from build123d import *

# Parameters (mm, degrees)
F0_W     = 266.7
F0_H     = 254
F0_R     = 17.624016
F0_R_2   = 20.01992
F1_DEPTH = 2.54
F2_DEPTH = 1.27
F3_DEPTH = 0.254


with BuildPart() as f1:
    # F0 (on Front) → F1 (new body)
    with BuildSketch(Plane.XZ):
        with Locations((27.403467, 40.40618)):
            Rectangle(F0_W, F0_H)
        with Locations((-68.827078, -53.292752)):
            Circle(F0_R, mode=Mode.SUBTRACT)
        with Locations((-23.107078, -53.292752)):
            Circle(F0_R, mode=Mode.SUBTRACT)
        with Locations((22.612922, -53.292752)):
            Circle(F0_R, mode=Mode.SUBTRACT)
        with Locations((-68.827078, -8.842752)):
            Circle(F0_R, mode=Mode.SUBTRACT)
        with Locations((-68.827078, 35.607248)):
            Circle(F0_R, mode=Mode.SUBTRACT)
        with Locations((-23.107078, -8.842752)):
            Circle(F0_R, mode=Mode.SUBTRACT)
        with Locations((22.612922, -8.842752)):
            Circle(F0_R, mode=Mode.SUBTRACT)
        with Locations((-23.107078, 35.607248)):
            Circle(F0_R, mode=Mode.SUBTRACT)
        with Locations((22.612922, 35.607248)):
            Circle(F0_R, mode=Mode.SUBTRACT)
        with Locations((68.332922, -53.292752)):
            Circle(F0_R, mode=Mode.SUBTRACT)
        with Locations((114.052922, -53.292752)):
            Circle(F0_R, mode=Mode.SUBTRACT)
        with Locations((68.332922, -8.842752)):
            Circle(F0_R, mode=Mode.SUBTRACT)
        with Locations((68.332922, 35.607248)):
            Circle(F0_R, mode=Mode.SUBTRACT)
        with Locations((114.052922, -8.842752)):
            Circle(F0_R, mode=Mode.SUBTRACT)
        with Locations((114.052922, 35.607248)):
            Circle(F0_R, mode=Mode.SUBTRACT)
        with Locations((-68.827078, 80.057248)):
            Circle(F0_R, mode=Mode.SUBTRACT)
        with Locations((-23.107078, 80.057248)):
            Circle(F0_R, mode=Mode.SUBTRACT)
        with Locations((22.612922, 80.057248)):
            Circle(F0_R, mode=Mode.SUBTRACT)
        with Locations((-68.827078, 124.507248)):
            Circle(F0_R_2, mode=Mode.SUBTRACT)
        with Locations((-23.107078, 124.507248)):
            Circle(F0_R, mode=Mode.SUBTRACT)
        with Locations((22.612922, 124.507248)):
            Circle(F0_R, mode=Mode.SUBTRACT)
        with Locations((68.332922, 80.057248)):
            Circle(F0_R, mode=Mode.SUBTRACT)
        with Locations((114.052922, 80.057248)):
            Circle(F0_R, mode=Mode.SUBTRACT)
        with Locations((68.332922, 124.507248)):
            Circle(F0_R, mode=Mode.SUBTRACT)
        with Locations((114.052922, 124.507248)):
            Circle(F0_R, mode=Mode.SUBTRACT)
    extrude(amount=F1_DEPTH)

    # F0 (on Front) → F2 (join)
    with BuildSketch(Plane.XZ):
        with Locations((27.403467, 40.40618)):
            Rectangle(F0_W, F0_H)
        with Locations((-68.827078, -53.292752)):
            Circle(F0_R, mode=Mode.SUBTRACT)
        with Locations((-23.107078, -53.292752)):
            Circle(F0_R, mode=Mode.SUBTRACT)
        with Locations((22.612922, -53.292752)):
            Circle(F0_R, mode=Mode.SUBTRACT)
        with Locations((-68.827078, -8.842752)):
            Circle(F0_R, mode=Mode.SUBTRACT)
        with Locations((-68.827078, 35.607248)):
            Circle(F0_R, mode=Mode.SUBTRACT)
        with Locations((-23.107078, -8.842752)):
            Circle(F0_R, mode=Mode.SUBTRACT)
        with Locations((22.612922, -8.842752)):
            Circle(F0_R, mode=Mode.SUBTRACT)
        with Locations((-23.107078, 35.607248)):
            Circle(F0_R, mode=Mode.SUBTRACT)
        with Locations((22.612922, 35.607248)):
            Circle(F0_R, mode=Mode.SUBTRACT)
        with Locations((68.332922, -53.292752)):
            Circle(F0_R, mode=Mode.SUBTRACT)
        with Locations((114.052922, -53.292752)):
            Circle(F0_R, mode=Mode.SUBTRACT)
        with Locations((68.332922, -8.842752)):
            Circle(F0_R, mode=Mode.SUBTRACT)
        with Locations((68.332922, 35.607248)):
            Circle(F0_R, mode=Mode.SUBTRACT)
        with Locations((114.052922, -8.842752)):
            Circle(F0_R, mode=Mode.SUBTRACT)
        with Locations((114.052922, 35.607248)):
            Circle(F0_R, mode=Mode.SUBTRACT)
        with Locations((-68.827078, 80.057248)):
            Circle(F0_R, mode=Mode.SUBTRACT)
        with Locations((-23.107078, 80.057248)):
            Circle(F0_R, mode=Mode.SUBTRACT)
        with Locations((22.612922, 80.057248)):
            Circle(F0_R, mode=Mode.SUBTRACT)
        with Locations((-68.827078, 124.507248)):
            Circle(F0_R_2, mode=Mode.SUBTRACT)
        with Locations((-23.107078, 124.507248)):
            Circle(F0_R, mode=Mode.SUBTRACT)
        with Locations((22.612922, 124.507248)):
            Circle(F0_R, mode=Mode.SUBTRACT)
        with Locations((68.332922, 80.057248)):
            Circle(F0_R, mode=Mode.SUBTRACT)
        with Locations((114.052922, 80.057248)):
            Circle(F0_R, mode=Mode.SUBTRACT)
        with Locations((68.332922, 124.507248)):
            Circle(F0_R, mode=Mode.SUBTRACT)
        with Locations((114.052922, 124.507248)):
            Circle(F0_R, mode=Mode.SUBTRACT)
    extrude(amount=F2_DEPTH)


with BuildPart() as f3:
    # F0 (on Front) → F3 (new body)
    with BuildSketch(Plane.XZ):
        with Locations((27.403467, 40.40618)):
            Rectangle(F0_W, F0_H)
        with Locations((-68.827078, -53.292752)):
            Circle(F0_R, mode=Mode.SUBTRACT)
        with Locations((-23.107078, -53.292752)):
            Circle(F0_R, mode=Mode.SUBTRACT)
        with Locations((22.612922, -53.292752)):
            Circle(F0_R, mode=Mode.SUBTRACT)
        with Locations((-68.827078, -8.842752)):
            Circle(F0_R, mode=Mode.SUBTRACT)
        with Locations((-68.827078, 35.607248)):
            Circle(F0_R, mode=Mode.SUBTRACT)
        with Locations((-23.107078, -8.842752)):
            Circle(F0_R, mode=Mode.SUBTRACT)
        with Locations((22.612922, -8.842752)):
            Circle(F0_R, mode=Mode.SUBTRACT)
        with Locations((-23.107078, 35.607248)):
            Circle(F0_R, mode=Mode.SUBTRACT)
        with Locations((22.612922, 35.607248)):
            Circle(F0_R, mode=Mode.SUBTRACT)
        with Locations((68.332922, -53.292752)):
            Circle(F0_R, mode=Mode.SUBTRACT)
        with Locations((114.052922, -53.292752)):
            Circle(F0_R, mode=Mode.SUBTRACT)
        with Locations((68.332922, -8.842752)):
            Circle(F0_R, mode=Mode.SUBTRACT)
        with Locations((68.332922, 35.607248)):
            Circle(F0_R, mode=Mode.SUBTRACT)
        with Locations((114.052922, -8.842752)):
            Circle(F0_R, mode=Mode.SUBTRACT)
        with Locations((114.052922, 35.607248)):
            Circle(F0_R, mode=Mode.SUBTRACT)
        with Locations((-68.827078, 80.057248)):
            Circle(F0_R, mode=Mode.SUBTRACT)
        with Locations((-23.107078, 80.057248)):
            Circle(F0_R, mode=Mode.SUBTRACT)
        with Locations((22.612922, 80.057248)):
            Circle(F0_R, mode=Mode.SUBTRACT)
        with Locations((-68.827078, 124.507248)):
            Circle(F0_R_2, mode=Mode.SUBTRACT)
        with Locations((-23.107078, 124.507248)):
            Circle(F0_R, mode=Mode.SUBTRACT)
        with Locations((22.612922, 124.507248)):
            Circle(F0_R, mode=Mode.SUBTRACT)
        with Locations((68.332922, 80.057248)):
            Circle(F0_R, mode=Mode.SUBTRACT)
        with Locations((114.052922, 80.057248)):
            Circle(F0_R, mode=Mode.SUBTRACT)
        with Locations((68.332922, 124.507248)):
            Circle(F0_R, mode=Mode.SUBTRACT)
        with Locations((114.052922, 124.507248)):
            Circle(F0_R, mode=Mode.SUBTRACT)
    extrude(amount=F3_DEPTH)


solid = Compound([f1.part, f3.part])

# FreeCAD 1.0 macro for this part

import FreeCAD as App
import Part
import Sketcher

V = App.Vector
Q = App.Units.Quantity


def add_polygon(sketch, points):
    """Adds a closed chain of lines whose ends are joined by coincident constraints."""
    first, n = sketch.GeometryCount, len(points)
    for a, b in zip(points, points[1:] + points[:1]):
        sketch.addGeometry(Part.LineSegment(App.Vector(*a, 0), App.Vector(*b, 0)), False)
    for i in range(n):
        sketch.addConstraint(Sketcher.Constraint("Coincident", first + i, 2, first + (i + 1) % n, 1))

doc = App.newDocument("Part")
params = doc.addObject("Spreadsheet::Sheet", "Params")
for row, (alias, value) in enumerate([
    ("sketch1_height", "10 in"),
    ("sketch1_width", "10.5 in"),
    ("pad1_length", "0.1 in"),
    ("sketch2_height", "10 in"),
    ("sketch2_width", "10.5 in"),
    ("pad2_length", "0.05 in"),
    ("sketch3_height", "10 in"),
    ("sketch3_width", "10.5 in"),
    ("pad3_length", "0.01 in"),
], start=1):
    params.set(f"A{row}", alias)
    params.set(f"B{row}", "=" + value)
    params.setAlias(f"B{row}", alias)

body = doc.addObject("PartDesign::Body", "Body")

sketch1 = doc.addObject("Sketcher::SketchObject", "Sketch")
body.addObject(sketch1)
sketch1.AttachmentSupport = (doc.XZ_Plane, [""])
sketch1.MapMode = "FlatFace"
add_polygon(sketch1, [(-106, 167), (-106, -87), (161, -87), (161, 167)])
sketch1.addGeometry(Part.Circle(V(-69, -53, 0), V(0, 0, 1), 18), False)
sketch1.addGeometry(Part.Circle(V(-23, -53, 0), V(0, 0, 1), 18), False)
sketch1.addGeometry(Part.Circle(V(-69, -9, 0), V(0, 0, 1), 18), False)
sketch1.addGeometry(Part.Circle(V(-69, 36, 0), V(0, 0, 1), 18), False)
sketch1.addGeometry(Part.Circle(V(-23, -9, 0), V(0, 0, 1), 18), False)
sketch1.addGeometry(Part.Circle(V(-23, 36, 0), V(0, 0, 1), 18), False)
sketch1.addGeometry(Part.Circle(V(23, -53, 0), V(0, 0, 1), 18), False)
sketch1.addGeometry(Part.Circle(V(68, -53, 0), V(0, 0, 1), 18), False)
sketch1.addGeometry(Part.Circle(V(114, -53, 0), V(0, 0, 1), 18), False)
sketch1.addGeometry(Part.Circle(V(23, -9, 0), V(0, 0, 1), 18), False)
sketch1.addGeometry(Part.Circle(V(68, -9, 0), V(0, 0, 1), 18), False)
sketch1.addGeometry(Part.Circle(V(23, 36, 0), V(0, 0, 1), 18), False)
sketch1.addGeometry(Part.Circle(V(68, 36, 0), V(0, 0, 1), 18), False)
sketch1.addGeometry(Part.Circle(V(114, -9, 0), V(0, 0, 1), 18), False)
sketch1.addGeometry(Part.Circle(V(114, 36, 0), V(0, 0, 1), 18), False)
sketch1.addGeometry(Part.Circle(V(-69, 80, 0), V(0, 0, 1), 18), False)
sketch1.addGeometry(Part.Circle(V(-23, 80, 0), V(0, 0, 1), 18), False)
sketch1.addGeometry(Part.Circle(V(-69, 125, 0), V(0, 0, 1), 20), False)
sketch1.addGeometry(Part.Circle(V(-23, 125, 0), V(0, 0, 1), 18), False)
sketch1.addGeometry(Part.Circle(V(23, 80, 0), V(0, 0, 1), 18), False)
sketch1.addGeometry(Part.Circle(V(68, 80, 0), V(0, 0, 1), 18), False)
sketch1.addGeometry(Part.Circle(V(114, 80, 0), V(0, 0, 1), 18), False)
sketch1.addGeometry(Part.Circle(V(23, 125, 0), V(0, 0, 1), 18), False)
sketch1.addGeometry(Part.Circle(V(68, 125, 0), V(0, 0, 1), 18), False)
sketch1.addGeometry(Part.Circle(V(114, 125, 0), V(0, 0, 1), 18), False)
sketch1.addConstraint(Sketcher.Constraint("Vertical", 0))
sketch1.addConstraint(Sketcher.Constraint("Horizontal", 1))
sketch1.addConstraint(Sketcher.Constraint("Vertical", 2))
sketch1.addConstraint(Sketcher.Constraint("Horizontal", 3))
sketch1.addConstraint(Sketcher.Constraint("Equal", 4, 5))
sketch1.addConstraint(Sketcher.Constraint("Equal", 5, 6))
sketch1.addConstraint(Sketcher.Constraint("Equal", 6, 7))
sketch1.addConstraint(Sketcher.Constraint("Equal", 7, 8))
sketch1.addConstraint(Sketcher.Constraint("Equal", 8, 9))
sketch1.addConstraint(Sketcher.Constraint("Equal", 9, 10))
sketch1.addConstraint(Sketcher.Constraint("Equal", 10, 11))
sketch1.addConstraint(Sketcher.Constraint("Equal", 11, 12))
sketch1.addConstraint(Sketcher.Constraint("Equal", 12, 13))
sketch1.addConstraint(Sketcher.Constraint("Equal", 13, 14))
sketch1.addConstraint(Sketcher.Constraint("Equal", 14, 15))
sketch1.addConstraint(Sketcher.Constraint("Equal", 15, 16))
sketch1.addConstraint(Sketcher.Constraint("Equal", 16, 17))
sketch1.addConstraint(Sketcher.Constraint("Equal", 17, 18))
sketch1.addConstraint(Sketcher.Constraint("Equal", 18, 19))
sketch1.addConstraint(Sketcher.Constraint("Equal", 19, 20))
sketch1.addConstraint(Sketcher.Constraint("Equal", 20, 22))
sketch1.addConstraint(Sketcher.Constraint("Equal", 22, 23))
sketch1.addConstraint(Sketcher.Constraint("Equal", 23, 24))
sketch1.addConstraint(Sketcher.Constraint("Equal", 24, 25))
sketch1.addConstraint(Sketcher.Constraint("Equal", 25, 26))
sketch1.addConstraint(Sketcher.Constraint("Equal", 26, 27))
sketch1.addConstraint(Sketcher.Constraint("Equal", 27, 28))
sketch1.addConstraint(Sketcher.Constraint("Horizontal", 4, 3, 5, 3))
sketch1.addConstraint(Sketcher.Constraint("Horizontal", 6, 3, 8, 3))
sketch1.addConstraint(Sketcher.Constraint("Horizontal", 7, 3, 9, 3))
sketch1.addConstraint(Sketcher.Constraint("Horizontal", 5, 3, 10, 3))
sketch1.addConstraint(Sketcher.Constraint("Horizontal", 10, 3, 11, 3))
sketch1.addConstraint(Sketcher.Constraint("Horizontal", 11, 3, 12, 3))
sketch1.addConstraint(Sketcher.Constraint("Horizontal", 8, 3, 13, 3))
sketch1.addConstraint(Sketcher.Constraint("Horizontal", 13, 3, 14, 3))
sketch1.addConstraint(Sketcher.Constraint("Horizontal", 9, 3, 15, 3))
sketch1.addConstraint(Sketcher.Constraint("Horizontal", 15, 3, 16, 3))
sketch1.addConstraint(Sketcher.Constraint("Horizontal", 14, 3, 17, 3))
sketch1.addConstraint(Sketcher.Constraint("Horizontal", 16, 3, 18, 3))
sketch1.addConstraint(Sketcher.Constraint("Horizontal", 19, 3, 20, 3))
sketch1.addConstraint(Sketcher.Constraint("Horizontal", 21, 3, 22, 3))
sketch1.addConstraint(Sketcher.Constraint("Horizontal", 20, 3, 23, 3))
sketch1.addConstraint(Sketcher.Constraint("Horizontal", 23, 3, 24, 3))
sketch1.addConstraint(Sketcher.Constraint("Horizontal", 24, 3, 25, 3))
sketch1.addConstraint(Sketcher.Constraint("Horizontal", 22, 3, 26, 3))
sketch1.addConstraint(Sketcher.Constraint("Horizontal", 26, 3, 27, 3))
sketch1.addConstraint(Sketcher.Constraint("Horizontal", 27, 3, 28, 3))
sketch1.addConstraint(Sketcher.Constraint("Vertical", 4, 3, 6, 3))
sketch1.addConstraint(Sketcher.Constraint("Vertical", 6, 3, 7, 3))
sketch1.addConstraint(Sketcher.Constraint("Vertical", 5, 3, 8, 3))
sketch1.addConstraint(Sketcher.Constraint("Vertical", 8, 3, 9, 3))
sketch1.addConstraint(Sketcher.Constraint("Vertical", 10, 3, 13, 3))
sketch1.addConstraint(Sketcher.Constraint("Vertical", 11, 3, 14, 3))
sketch1.addConstraint(Sketcher.Constraint("Vertical", 13, 3, 15, 3))
sketch1.addConstraint(Sketcher.Constraint("Vertical", 14, 3, 16, 3))
sketch1.addConstraint(Sketcher.Constraint("Vertical", 12, 3, 17, 3))
sketch1.addConstraint(Sketcher.Constraint("Vertical", 17, 3, 18, 3))
sketch1.addConstraint(Sketcher.Constraint("Vertical", 7, 3, 19, 3))
sketch1.addConstraint(Sketcher.Constraint("Vertical", 9, 3, 20, 3))
sketch1.addConstraint(Sketcher.Constraint("Vertical", 19, 3, 21, 3))
sketch1.addConstraint(Sketcher.Constraint("Vertical", 20, 3, 22, 3))
sketch1.addConstraint(Sketcher.Constraint("Vertical", 15, 3, 23, 3))
sketch1.addConstraint(Sketcher.Constraint("Vertical", 16, 3, 24, 3))
sketch1.addConstraint(Sketcher.Constraint("Vertical", 18, 3, 25, 3))
sketch1.addConstraint(Sketcher.Constraint("Vertical", 23, 3, 26, 3))
sketch1.addConstraint(Sketcher.Constraint("Vertical", 24, 3, 27, 3))
sketch1.addConstraint(Sketcher.Constraint("Vertical", 25, 3, 28, 3))
sketch1.addConstraint(Sketcher.Constraint("DistanceY", 0, 2, 0, 1, Q("10 in")))
sketch1.addConstraint(Sketcher.Constraint("DistanceX", 1, 1, 1, 2, Q("10.5 in")))
sketch1.addConstraint(Sketcher.Constraint("DistanceX", 4, 3, 5, 3, Q("1.8 in")))
sketch1.addConstraint(Sketcher.Constraint("DistanceY", 4, 3, 7, 3, Q("3.5 in")))
sketch1.addConstraint(Sketcher.Constraint("DistanceX", 5, 3, 10, 3, Q("1.8 in")))
sketch1.addConstraint(Sketcher.Constraint("DistanceX", 10, 3, 11, 3, Q("1.8 in")))
sketch1.addConstraint(Sketcher.Constraint("DistanceX", 11, 3, 12, 3, Q("1.8 in")))
sketch1.addConstraint(Sketcher.Constraint("DistanceY", 6, 3, 19, 3, Q("3.5 in")))
sketch1.addConstraint(Sketcher.Constraint("DistanceY", 7, 3, 21, 3, Q("3.5 in")))
sketch1.addConstraint(Sketcher.Constraint("DistanceY", 4, 3, 6, 3, Q("1.75 in")))
sketch1.addConstraint(Sketcher.Constraint("Diameter", 21, 40.03984))
sketch1.addConstraint(Sketcher.Constraint("Diameter", 4, 35.248032))
sketch1.addConstraint(Sketcher.Constraint("DistanceX", 4, 3, -1, 1, 68.827078))
sketch1.addConstraint(Sketcher.Constraint("DistanceY", -1, 1, 19, 3, 80.057248))
sketch1.addConstraint(Sketcher.Constraint("DistanceY", 0, 2, -1, 1, 86.59382))
sketch1.addConstraint(Sketcher.Constraint("DistanceX", 0, 2, -1, 1, 105.946533))
sketch1.setExpression("Constraints[71]", "Params.sketch1_height")
sketch1.setExpression("Constraints[72]", "Params.sketch1_width")
pad1 = doc.addObject("PartDesign::Pad", "Pad")
body.addObject(pad1)
pad1.Profile = sketch1
pad1.setExpression("Length", "Params.pad1_length")

sketch2 = doc.addObject("Sketcher::SketchObject", "Sketch001")
body.addObject(sketch2)
sketch2.AttachmentSupport = (doc.XZ_Plane, [""])
sketch2.MapMode = "FlatFace"
add_polygon(sketch2, [(-106, 167), (-106, -87), (161, -87), (161, 167)])
sketch2.addGeometry(Part.Circle(V(-69, -53, 0), V(0, 0, 1), 18), False)
sketch2.addGeometry(Part.Circle(V(-23, -53, 0), V(0, 0, 1), 18), False)
sketch2.addGeometry(Part.Circle(V(-69, -9, 0), V(0, 0, 1), 18), False)
sketch2.addGeometry(Part.Circle(V(-69, 36, 0), V(0, 0, 1), 18), False)
sketch2.addGeometry(Part.Circle(V(-23, -9, 0), V(0, 0, 1), 18), False)
sketch2.addGeometry(Part.Circle(V(-23, 36, 0), V(0, 0, 1), 18), False)
sketch2.addGeometry(Part.Circle(V(23, -53, 0), V(0, 0, 1), 18), False)
sketch2.addGeometry(Part.Circle(V(68, -53, 0), V(0, 0, 1), 18), False)
sketch2.addGeometry(Part.Circle(V(114, -53, 0), V(0, 0, 1), 18), False)
sketch2.addGeometry(Part.Circle(V(23, -9, 0), V(0, 0, 1), 18), False)
sketch2.addGeometry(Part.Circle(V(68, -9, 0), V(0, 0, 1), 18), False)
sketch2.addGeometry(Part.Circle(V(23, 36, 0), V(0, 0, 1), 18), False)
sketch2.addGeometry(Part.Circle(V(68, 36, 0), V(0, 0, 1), 18), False)
sketch2.addGeometry(Part.Circle(V(114, -9, 0), V(0, 0, 1), 18), False)
sketch2.addGeometry(Part.Circle(V(114, 36, 0), V(0, 0, 1), 18), False)
sketch2.addGeometry(Part.Circle(V(-69, 80, 0), V(0, 0, 1), 18), False)
sketch2.addGeometry(Part.Circle(V(-23, 80, 0), V(0, 0, 1), 18), False)
sketch2.addGeometry(Part.Circle(V(-69, 125, 0), V(0, 0, 1), 20), False)
sketch2.addGeometry(Part.Circle(V(-23, 125, 0), V(0, 0, 1), 18), False)
sketch2.addGeometry(Part.Circle(V(23, 80, 0), V(0, 0, 1), 18), False)
sketch2.addGeometry(Part.Circle(V(68, 80, 0), V(0, 0, 1), 18), False)
sketch2.addGeometry(Part.Circle(V(114, 80, 0), V(0, 0, 1), 18), False)
sketch2.addGeometry(Part.Circle(V(23, 125, 0), V(0, 0, 1), 18), False)
sketch2.addGeometry(Part.Circle(V(68, 125, 0), V(0, 0, 1), 18), False)
sketch2.addGeometry(Part.Circle(V(114, 125, 0), V(0, 0, 1), 18), False)
sketch2.addConstraint(Sketcher.Constraint("Vertical", 0))
sketch2.addConstraint(Sketcher.Constraint("Horizontal", 1))
sketch2.addConstraint(Sketcher.Constraint("Vertical", 2))
sketch2.addConstraint(Sketcher.Constraint("Horizontal", 3))
sketch2.addConstraint(Sketcher.Constraint("Equal", 4, 5))
sketch2.addConstraint(Sketcher.Constraint("Equal", 5, 6))
sketch2.addConstraint(Sketcher.Constraint("Equal", 6, 7))
sketch2.addConstraint(Sketcher.Constraint("Equal", 7, 8))
sketch2.addConstraint(Sketcher.Constraint("Equal", 8, 9))
sketch2.addConstraint(Sketcher.Constraint("Equal", 9, 10))
sketch2.addConstraint(Sketcher.Constraint("Equal", 10, 11))
sketch2.addConstraint(Sketcher.Constraint("Equal", 11, 12))
sketch2.addConstraint(Sketcher.Constraint("Equal", 12, 13))
sketch2.addConstraint(Sketcher.Constraint("Equal", 13, 14))
sketch2.addConstraint(Sketcher.Constraint("Equal", 14, 15))
sketch2.addConstraint(Sketcher.Constraint("Equal", 15, 16))
sketch2.addConstraint(Sketcher.Constraint("Equal", 16, 17))
sketch2.addConstraint(Sketcher.Constraint("Equal", 17, 18))
sketch2.addConstraint(Sketcher.Constraint("Equal", 18, 19))
sketch2.addConstraint(Sketcher.Constraint("Equal", 19, 20))
sketch2.addConstraint(Sketcher.Constraint("Equal", 20, 22))
sketch2.addConstraint(Sketcher.Constraint("Equal", 22, 23))
sketch2.addConstraint(Sketcher.Constraint("Equal", 23, 24))
sketch2.addConstraint(Sketcher.Constraint("Equal", 24, 25))
sketch2.addConstraint(Sketcher.Constraint("Equal", 25, 26))
sketch2.addConstraint(Sketcher.Constraint("Equal", 26, 27))
sketch2.addConstraint(Sketcher.Constraint("Equal", 27, 28))
sketch2.addConstraint(Sketcher.Constraint("Horizontal", 4, 3, 5, 3))
sketch2.addConstraint(Sketcher.Constraint("Horizontal", 6, 3, 8, 3))
sketch2.addConstraint(Sketcher.Constraint("Horizontal", 7, 3, 9, 3))
sketch2.addConstraint(Sketcher.Constraint("Horizontal", 5, 3, 10, 3))
sketch2.addConstraint(Sketcher.Constraint("Horizontal", 10, 3, 11, 3))
sketch2.addConstraint(Sketcher.Constraint("Horizontal", 11, 3, 12, 3))
sketch2.addConstraint(Sketcher.Constraint("Horizontal", 8, 3, 13, 3))
sketch2.addConstraint(Sketcher.Constraint("Horizontal", 13, 3, 14, 3))
sketch2.addConstraint(Sketcher.Constraint("Horizontal", 9, 3, 15, 3))
sketch2.addConstraint(Sketcher.Constraint("Horizontal", 15, 3, 16, 3))
sketch2.addConstraint(Sketcher.Constraint("Horizontal", 14, 3, 17, 3))
sketch2.addConstraint(Sketcher.Constraint("Horizontal", 16, 3, 18, 3))
sketch2.addConstraint(Sketcher.Constraint("Horizontal", 19, 3, 20, 3))
sketch2.addConstraint(Sketcher.Constraint("Horizontal", 21, 3, 22, 3))
sketch2.addConstraint(Sketcher.Constraint("Horizontal", 20, 3, 23, 3))
sketch2.addConstraint(Sketcher.Constraint("Horizontal", 23, 3, 24, 3))
sketch2.addConstraint(Sketcher.Constraint("Horizontal", 24, 3, 25, 3))
sketch2.addConstraint(Sketcher.Constraint("Horizontal", 22, 3, 26, 3))
sketch2.addConstraint(Sketcher.Constraint("Horizontal", 26, 3, 27, 3))
sketch2.addConstraint(Sketcher.Constraint("Horizontal", 27, 3, 28, 3))
sketch2.addConstraint(Sketcher.Constraint("Vertical", 4, 3, 6, 3))
sketch2.addConstraint(Sketcher.Constraint("Vertical", 6, 3, 7, 3))
sketch2.addConstraint(Sketcher.Constraint("Vertical", 5, 3, 8, 3))
sketch2.addConstraint(Sketcher.Constraint("Vertical", 8, 3, 9, 3))
sketch2.addConstraint(Sketcher.Constraint("Vertical", 10, 3, 13, 3))
sketch2.addConstraint(Sketcher.Constraint("Vertical", 11, 3, 14, 3))
sketch2.addConstraint(Sketcher.Constraint("Vertical", 13, 3, 15, 3))
sketch2.addConstraint(Sketcher.Constraint("Vertical", 14, 3, 16, 3))
sketch2.addConstraint(Sketcher.Constraint("Vertical", 12, 3, 17, 3))
sketch2.addConstraint(Sketcher.Constraint("Vertical", 17, 3, 18, 3))
sketch2.addConstraint(Sketcher.Constraint("Vertical", 7, 3, 19, 3))
sketch2.addConstraint(Sketcher.Constraint("Vertical", 9, 3, 20, 3))
sketch2.addConstraint(Sketcher.Constraint("Vertical", 19, 3, 21, 3))
sketch2.addConstraint(Sketcher.Constraint("Vertical", 20, 3, 22, 3))
sketch2.addConstraint(Sketcher.Constraint("Vertical", 15, 3, 23, 3))
sketch2.addConstraint(Sketcher.Constraint("Vertical", 16, 3, 24, 3))
sketch2.addConstraint(Sketcher.Constraint("Vertical", 18, 3, 25, 3))
sketch2.addConstraint(Sketcher.Constraint("Vertical", 23, 3, 26, 3))
sketch2.addConstraint(Sketcher.Constraint("Vertical", 24, 3, 27, 3))
sketch2.addConstraint(Sketcher.Constraint("Vertical", 25, 3, 28, 3))
sketch2.addConstraint(Sketcher.Constraint("DistanceY", 0, 2, 0, 1, Q("10 in")))
sketch2.addConstraint(Sketcher.Constraint("DistanceX", 1, 1, 1, 2, Q("10.5 in")))
sketch2.addConstraint(Sketcher.Constraint("DistanceX", 4, 3, 5, 3, Q("1.8 in")))
sketch2.addConstraint(Sketcher.Constraint("DistanceY", 4, 3, 7, 3, Q("3.5 in")))
sketch2.addConstraint(Sketcher.Constraint("DistanceX", 5, 3, 10, 3, Q("1.8 in")))
sketch2.addConstraint(Sketcher.Constraint("DistanceX", 10, 3, 11, 3, Q("1.8 in")))
sketch2.addConstraint(Sketcher.Constraint("DistanceX", 11, 3, 12, 3, Q("1.8 in")))
sketch2.addConstraint(Sketcher.Constraint("DistanceY", 6, 3, 19, 3, Q("3.5 in")))
sketch2.addConstraint(Sketcher.Constraint("DistanceY", 7, 3, 21, 3, Q("3.5 in")))
sketch2.addConstraint(Sketcher.Constraint("DistanceY", 4, 3, 6, 3, Q("1.75 in")))
sketch2.addConstraint(Sketcher.Constraint("Diameter", 21, 40.03984))
sketch2.addConstraint(Sketcher.Constraint("Diameter", 4, 35.248032))
sketch2.addConstraint(Sketcher.Constraint("DistanceX", 4, 3, -1, 1, 68.827078))
sketch2.addConstraint(Sketcher.Constraint("DistanceY", -1, 1, 19, 3, 80.057248))
sketch2.addConstraint(Sketcher.Constraint("DistanceY", 0, 2, -1, 1, 86.59382))
sketch2.addConstraint(Sketcher.Constraint("DistanceX", 0, 2, -1, 1, 105.946533))
sketch2.setExpression("Constraints[71]", "Params.sketch2_height")
sketch2.setExpression("Constraints[72]", "Params.sketch2_width")
pad2 = doc.addObject("PartDesign::Pad", "Pad001")
body.addObject(pad2)
pad2.Profile = sketch2
pad2.setExpression("Length", "Params.pad2_length")
body2 = doc.addObject("PartDesign::Body", "Body001")

sketch3 = doc.addObject("Sketcher::SketchObject", "Sketch002")
body2.addObject(sketch3)
sketch3.AttachmentSupport = (doc.getObject("XZ_Plane001"), [""])
sketch3.MapMode = "FlatFace"
add_polygon(sketch3, [(-106, 167), (-106, -87), (161, -87), (161, 167)])
sketch3.addGeometry(Part.Circle(V(-69, -53, 0), V(0, 0, 1), 18), False)
sketch3.addGeometry(Part.Circle(V(-23, -53, 0), V(0, 0, 1), 18), False)
sketch3.addGeometry(Part.Circle(V(-69, -9, 0), V(0, 0, 1), 18), False)
sketch3.addGeometry(Part.Circle(V(-69, 36, 0), V(0, 0, 1), 18), False)
sketch3.addGeometry(Part.Circle(V(-23, -9, 0), V(0, 0, 1), 18), False)
sketch3.addGeometry(Part.Circle(V(-23, 36, 0), V(0, 0, 1), 18), False)
sketch3.addGeometry(Part.Circle(V(23, -53, 0), V(0, 0, 1), 18), False)
sketch3.addGeometry(Part.Circle(V(68, -53, 0), V(0, 0, 1), 18), False)
sketch3.addGeometry(Part.Circle(V(114, -53, 0), V(0, 0, 1), 18), False)
sketch3.addGeometry(Part.Circle(V(23, -9, 0), V(0, 0, 1), 18), False)
sketch3.addGeometry(Part.Circle(V(68, -9, 0), V(0, 0, 1), 18), False)
sketch3.addGeometry(Part.Circle(V(23, 36, 0), V(0, 0, 1), 18), False)
sketch3.addGeometry(Part.Circle(V(68, 36, 0), V(0, 0, 1), 18), False)
sketch3.addGeometry(Part.Circle(V(114, -9, 0), V(0, 0, 1), 18), False)
sketch3.addGeometry(Part.Circle(V(114, 36, 0), V(0, 0, 1), 18), False)
sketch3.addGeometry(Part.Circle(V(-69, 80, 0), V(0, 0, 1), 18), False)
sketch3.addGeometry(Part.Circle(V(-23, 80, 0), V(0, 0, 1), 18), False)
sketch3.addGeometry(Part.Circle(V(-69, 125, 0), V(0, 0, 1), 20), False)
sketch3.addGeometry(Part.Circle(V(-23, 125, 0), V(0, 0, 1), 18), False)
sketch3.addGeometry(Part.Circle(V(23, 80, 0), V(0, 0, 1), 18), False)
sketch3.addGeometry(Part.Circle(V(68, 80, 0), V(0, 0, 1), 18), False)
sketch3.addGeometry(Part.Circle(V(114, 80, 0), V(0, 0, 1), 18), False)
sketch3.addGeometry(Part.Circle(V(23, 125, 0), V(0, 0, 1), 18), False)
sketch3.addGeometry(Part.Circle(V(68, 125, 0), V(0, 0, 1), 18), False)
sketch3.addGeometry(Part.Circle(V(114, 125, 0), V(0, 0, 1), 18), False)
sketch3.addConstraint(Sketcher.Constraint("Vertical", 0))
sketch3.addConstraint(Sketcher.Constraint("Horizontal", 1))
sketch3.addConstraint(Sketcher.Constraint("Vertical", 2))
sketch3.addConstraint(Sketcher.Constraint("Horizontal", 3))
sketch3.addConstraint(Sketcher.Constraint("Equal", 4, 5))
sketch3.addConstraint(Sketcher.Constraint("Equal", 5, 6))
sketch3.addConstraint(Sketcher.Constraint("Equal", 6, 7))
sketch3.addConstraint(Sketcher.Constraint("Equal", 7, 8))
sketch3.addConstraint(Sketcher.Constraint("Equal", 8, 9))
sketch3.addConstraint(Sketcher.Constraint("Equal", 9, 10))
sketch3.addConstraint(Sketcher.Constraint("Equal", 10, 11))
sketch3.addConstraint(Sketcher.Constraint("Equal", 11, 12))
sketch3.addConstraint(Sketcher.Constraint("Equal", 12, 13))
sketch3.addConstraint(Sketcher.Constraint("Equal", 13, 14))
sketch3.addConstraint(Sketcher.Constraint("Equal", 14, 15))
sketch3.addConstraint(Sketcher.Constraint("Equal", 15, 16))
sketch3.addConstraint(Sketcher.Constraint("Equal", 16, 17))
sketch3.addConstraint(Sketcher.Constraint("Equal", 17, 18))
sketch3.addConstraint(Sketcher.Constraint("Equal", 18, 19))
sketch3.addConstraint(Sketcher.Constraint("Equal", 19, 20))
sketch3.addConstraint(Sketcher.Constraint("Equal", 20, 22))
sketch3.addConstraint(Sketcher.Constraint("Equal", 22, 23))
sketch3.addConstraint(Sketcher.Constraint("Equal", 23, 24))
sketch3.addConstraint(Sketcher.Constraint("Equal", 24, 25))
sketch3.addConstraint(Sketcher.Constraint("Equal", 25, 26))
sketch3.addConstraint(Sketcher.Constraint("Equal", 26, 27))
sketch3.addConstraint(Sketcher.Constraint("Equal", 27, 28))
sketch3.addConstraint(Sketcher.Constraint("Horizontal", 4, 3, 5, 3))
sketch3.addConstraint(Sketcher.Constraint("Horizontal", 6, 3, 8, 3))
sketch3.addConstraint(Sketcher.Constraint("Horizontal", 7, 3, 9, 3))
sketch3.addConstraint(Sketcher.Constraint("Horizontal", 5, 3, 10, 3))
sketch3.addConstraint(Sketcher.Constraint("Horizontal", 10, 3, 11, 3))
sketch3.addConstraint(Sketcher.Constraint("Horizontal", 11, 3, 12, 3))
sketch3.addConstraint(Sketcher.Constraint("Horizontal", 8, 3, 13, 3))
sketch3.addConstraint(Sketcher.Constraint("Horizontal", 13, 3, 14, 3))
sketch3.addConstraint(Sketcher.Constraint("Horizontal", 9, 3, 15, 3))
sketch3.addConstraint(Sketcher.Constraint("Horizontal", 15, 3, 16, 3))
sketch3.addConstraint(Sketcher.Constraint("Horizontal", 14, 3, 17, 3))
sketch3.addConstraint(Sketcher.Constraint("Horizontal", 16, 3, 18, 3))
sketch3.addConstraint(Sketcher.Constraint("Horizontal", 19, 3, 20, 3))
sketch3.addConstraint(Sketcher.Constraint("Horizontal", 21, 3, 22, 3))
sketch3.addConstraint(Sketcher.Constraint("Horizontal", 20, 3, 23, 3))
sketch3.addConstraint(Sketcher.Constraint("Horizontal", 23, 3, 24, 3))
sketch3.addConstraint(Sketcher.Constraint("Horizontal", 24, 3, 25, 3))
sketch3.addConstraint(Sketcher.Constraint("Horizontal", 22, 3, 26, 3))
sketch3.addConstraint(Sketcher.Constraint("Horizontal", 26, 3, 27, 3))
sketch3.addConstraint(Sketcher.Constraint("Horizontal", 27, 3, 28, 3))
sketch3.addConstraint(Sketcher.Constraint("Vertical", 4, 3, 6, 3))
sketch3.addConstraint(Sketcher.Constraint("Vertical", 6, 3, 7, 3))
sketch3.addConstraint(Sketcher.Constraint("Vertical", 5, 3, 8, 3))
sketch3.addConstraint(Sketcher.Constraint("Vertical", 8, 3, 9, 3))
sketch3.addConstraint(Sketcher.Constraint("Vertical", 10, 3, 13, 3))
sketch3.addConstraint(Sketcher.Constraint("Vertical", 11, 3, 14, 3))
sketch3.addConstraint(Sketcher.Constraint("Vertical", 13, 3, 15, 3))
sketch3.addConstraint(Sketcher.Constraint("Vertical", 14, 3, 16, 3))
sketch3.addConstraint(Sketcher.Constraint("Vertical", 12, 3, 17, 3))
sketch3.addConstraint(Sketcher.Constraint("Vertical", 17, 3, 18, 3))
sketch3.addConstraint(Sketcher.Constraint("Vertical", 7, 3, 19, 3))
sketch3.addConstraint(Sketcher.Constraint("Vertical", 9, 3, 20, 3))
sketch3.addConstraint(Sketcher.Constraint("Vertical", 19, 3, 21, 3))
sketch3.addConstraint(Sketcher.Constraint("Vertical", 20, 3, 22, 3))
sketch3.addConstraint(Sketcher.Constraint("Vertical", 15, 3, 23, 3))
sketch3.addConstraint(Sketcher.Constraint("Vertical", 16, 3, 24, 3))
sketch3.addConstraint(Sketcher.Constraint("Vertical", 18, 3, 25, 3))
sketch3.addConstraint(Sketcher.Constraint("Vertical", 23, 3, 26, 3))
sketch3.addConstraint(Sketcher.Constraint("Vertical", 24, 3, 27, 3))
sketch3.addConstraint(Sketcher.Constraint("Vertical", 25, 3, 28, 3))
sketch3.addConstraint(Sketcher.Constraint("DistanceY", 0, 2, 0, 1, Q("10 in")))
sketch3.addConstraint(Sketcher.Constraint("DistanceX", 1, 1, 1, 2, Q("10.5 in")))
sketch3.addConstraint(Sketcher.Constraint("DistanceX", 4, 3, 5, 3, Q("1.8 in")))
sketch3.addConstraint(Sketcher.Constraint("DistanceY", 4, 3, 7, 3, Q("3.5 in")))
sketch3.addConstraint(Sketcher.Constraint("DistanceX", 5, 3, 10, 3, Q("1.8 in")))
sketch3.addConstraint(Sketcher.Constraint("DistanceX", 10, 3, 11, 3, Q("1.8 in")))
sketch3.addConstraint(Sketcher.Constraint("DistanceX", 11, 3, 12, 3, Q("1.8 in")))
sketch3.addConstraint(Sketcher.Constraint("DistanceY", 6, 3, 19, 3, Q("3.5 in")))
sketch3.addConstraint(Sketcher.Constraint("DistanceY", 7, 3, 21, 3, Q("3.5 in")))
sketch3.addConstraint(Sketcher.Constraint("DistanceY", 4, 3, 6, 3, Q("1.75 in")))
sketch3.addConstraint(Sketcher.Constraint("Diameter", 21, 40.03984))
sketch3.addConstraint(Sketcher.Constraint("Diameter", 4, 35.248032))
sketch3.addConstraint(Sketcher.Constraint("DistanceX", 4, 3, -1, 1, 68.827078))
sketch3.addConstraint(Sketcher.Constraint("DistanceY", -1, 1, 19, 3, 80.057248))
sketch3.addConstraint(Sketcher.Constraint("DistanceY", 0, 2, -1, 1, 86.59382))
sketch3.addConstraint(Sketcher.Constraint("DistanceX", 0, 2, -1, 1, 105.946533))
sketch3.setExpression("Constraints[71]", "Params.sketch3_height")
sketch3.setExpression("Constraints[72]", "Params.sketch3_width")
pad3 = doc.addObject("PartDesign::Pad", "Pad002")
body2.addObject(pad3)
pad3.Profile = sketch3
pad3.setExpression("Length", "Params.pad3_length")

doc.recompute()
